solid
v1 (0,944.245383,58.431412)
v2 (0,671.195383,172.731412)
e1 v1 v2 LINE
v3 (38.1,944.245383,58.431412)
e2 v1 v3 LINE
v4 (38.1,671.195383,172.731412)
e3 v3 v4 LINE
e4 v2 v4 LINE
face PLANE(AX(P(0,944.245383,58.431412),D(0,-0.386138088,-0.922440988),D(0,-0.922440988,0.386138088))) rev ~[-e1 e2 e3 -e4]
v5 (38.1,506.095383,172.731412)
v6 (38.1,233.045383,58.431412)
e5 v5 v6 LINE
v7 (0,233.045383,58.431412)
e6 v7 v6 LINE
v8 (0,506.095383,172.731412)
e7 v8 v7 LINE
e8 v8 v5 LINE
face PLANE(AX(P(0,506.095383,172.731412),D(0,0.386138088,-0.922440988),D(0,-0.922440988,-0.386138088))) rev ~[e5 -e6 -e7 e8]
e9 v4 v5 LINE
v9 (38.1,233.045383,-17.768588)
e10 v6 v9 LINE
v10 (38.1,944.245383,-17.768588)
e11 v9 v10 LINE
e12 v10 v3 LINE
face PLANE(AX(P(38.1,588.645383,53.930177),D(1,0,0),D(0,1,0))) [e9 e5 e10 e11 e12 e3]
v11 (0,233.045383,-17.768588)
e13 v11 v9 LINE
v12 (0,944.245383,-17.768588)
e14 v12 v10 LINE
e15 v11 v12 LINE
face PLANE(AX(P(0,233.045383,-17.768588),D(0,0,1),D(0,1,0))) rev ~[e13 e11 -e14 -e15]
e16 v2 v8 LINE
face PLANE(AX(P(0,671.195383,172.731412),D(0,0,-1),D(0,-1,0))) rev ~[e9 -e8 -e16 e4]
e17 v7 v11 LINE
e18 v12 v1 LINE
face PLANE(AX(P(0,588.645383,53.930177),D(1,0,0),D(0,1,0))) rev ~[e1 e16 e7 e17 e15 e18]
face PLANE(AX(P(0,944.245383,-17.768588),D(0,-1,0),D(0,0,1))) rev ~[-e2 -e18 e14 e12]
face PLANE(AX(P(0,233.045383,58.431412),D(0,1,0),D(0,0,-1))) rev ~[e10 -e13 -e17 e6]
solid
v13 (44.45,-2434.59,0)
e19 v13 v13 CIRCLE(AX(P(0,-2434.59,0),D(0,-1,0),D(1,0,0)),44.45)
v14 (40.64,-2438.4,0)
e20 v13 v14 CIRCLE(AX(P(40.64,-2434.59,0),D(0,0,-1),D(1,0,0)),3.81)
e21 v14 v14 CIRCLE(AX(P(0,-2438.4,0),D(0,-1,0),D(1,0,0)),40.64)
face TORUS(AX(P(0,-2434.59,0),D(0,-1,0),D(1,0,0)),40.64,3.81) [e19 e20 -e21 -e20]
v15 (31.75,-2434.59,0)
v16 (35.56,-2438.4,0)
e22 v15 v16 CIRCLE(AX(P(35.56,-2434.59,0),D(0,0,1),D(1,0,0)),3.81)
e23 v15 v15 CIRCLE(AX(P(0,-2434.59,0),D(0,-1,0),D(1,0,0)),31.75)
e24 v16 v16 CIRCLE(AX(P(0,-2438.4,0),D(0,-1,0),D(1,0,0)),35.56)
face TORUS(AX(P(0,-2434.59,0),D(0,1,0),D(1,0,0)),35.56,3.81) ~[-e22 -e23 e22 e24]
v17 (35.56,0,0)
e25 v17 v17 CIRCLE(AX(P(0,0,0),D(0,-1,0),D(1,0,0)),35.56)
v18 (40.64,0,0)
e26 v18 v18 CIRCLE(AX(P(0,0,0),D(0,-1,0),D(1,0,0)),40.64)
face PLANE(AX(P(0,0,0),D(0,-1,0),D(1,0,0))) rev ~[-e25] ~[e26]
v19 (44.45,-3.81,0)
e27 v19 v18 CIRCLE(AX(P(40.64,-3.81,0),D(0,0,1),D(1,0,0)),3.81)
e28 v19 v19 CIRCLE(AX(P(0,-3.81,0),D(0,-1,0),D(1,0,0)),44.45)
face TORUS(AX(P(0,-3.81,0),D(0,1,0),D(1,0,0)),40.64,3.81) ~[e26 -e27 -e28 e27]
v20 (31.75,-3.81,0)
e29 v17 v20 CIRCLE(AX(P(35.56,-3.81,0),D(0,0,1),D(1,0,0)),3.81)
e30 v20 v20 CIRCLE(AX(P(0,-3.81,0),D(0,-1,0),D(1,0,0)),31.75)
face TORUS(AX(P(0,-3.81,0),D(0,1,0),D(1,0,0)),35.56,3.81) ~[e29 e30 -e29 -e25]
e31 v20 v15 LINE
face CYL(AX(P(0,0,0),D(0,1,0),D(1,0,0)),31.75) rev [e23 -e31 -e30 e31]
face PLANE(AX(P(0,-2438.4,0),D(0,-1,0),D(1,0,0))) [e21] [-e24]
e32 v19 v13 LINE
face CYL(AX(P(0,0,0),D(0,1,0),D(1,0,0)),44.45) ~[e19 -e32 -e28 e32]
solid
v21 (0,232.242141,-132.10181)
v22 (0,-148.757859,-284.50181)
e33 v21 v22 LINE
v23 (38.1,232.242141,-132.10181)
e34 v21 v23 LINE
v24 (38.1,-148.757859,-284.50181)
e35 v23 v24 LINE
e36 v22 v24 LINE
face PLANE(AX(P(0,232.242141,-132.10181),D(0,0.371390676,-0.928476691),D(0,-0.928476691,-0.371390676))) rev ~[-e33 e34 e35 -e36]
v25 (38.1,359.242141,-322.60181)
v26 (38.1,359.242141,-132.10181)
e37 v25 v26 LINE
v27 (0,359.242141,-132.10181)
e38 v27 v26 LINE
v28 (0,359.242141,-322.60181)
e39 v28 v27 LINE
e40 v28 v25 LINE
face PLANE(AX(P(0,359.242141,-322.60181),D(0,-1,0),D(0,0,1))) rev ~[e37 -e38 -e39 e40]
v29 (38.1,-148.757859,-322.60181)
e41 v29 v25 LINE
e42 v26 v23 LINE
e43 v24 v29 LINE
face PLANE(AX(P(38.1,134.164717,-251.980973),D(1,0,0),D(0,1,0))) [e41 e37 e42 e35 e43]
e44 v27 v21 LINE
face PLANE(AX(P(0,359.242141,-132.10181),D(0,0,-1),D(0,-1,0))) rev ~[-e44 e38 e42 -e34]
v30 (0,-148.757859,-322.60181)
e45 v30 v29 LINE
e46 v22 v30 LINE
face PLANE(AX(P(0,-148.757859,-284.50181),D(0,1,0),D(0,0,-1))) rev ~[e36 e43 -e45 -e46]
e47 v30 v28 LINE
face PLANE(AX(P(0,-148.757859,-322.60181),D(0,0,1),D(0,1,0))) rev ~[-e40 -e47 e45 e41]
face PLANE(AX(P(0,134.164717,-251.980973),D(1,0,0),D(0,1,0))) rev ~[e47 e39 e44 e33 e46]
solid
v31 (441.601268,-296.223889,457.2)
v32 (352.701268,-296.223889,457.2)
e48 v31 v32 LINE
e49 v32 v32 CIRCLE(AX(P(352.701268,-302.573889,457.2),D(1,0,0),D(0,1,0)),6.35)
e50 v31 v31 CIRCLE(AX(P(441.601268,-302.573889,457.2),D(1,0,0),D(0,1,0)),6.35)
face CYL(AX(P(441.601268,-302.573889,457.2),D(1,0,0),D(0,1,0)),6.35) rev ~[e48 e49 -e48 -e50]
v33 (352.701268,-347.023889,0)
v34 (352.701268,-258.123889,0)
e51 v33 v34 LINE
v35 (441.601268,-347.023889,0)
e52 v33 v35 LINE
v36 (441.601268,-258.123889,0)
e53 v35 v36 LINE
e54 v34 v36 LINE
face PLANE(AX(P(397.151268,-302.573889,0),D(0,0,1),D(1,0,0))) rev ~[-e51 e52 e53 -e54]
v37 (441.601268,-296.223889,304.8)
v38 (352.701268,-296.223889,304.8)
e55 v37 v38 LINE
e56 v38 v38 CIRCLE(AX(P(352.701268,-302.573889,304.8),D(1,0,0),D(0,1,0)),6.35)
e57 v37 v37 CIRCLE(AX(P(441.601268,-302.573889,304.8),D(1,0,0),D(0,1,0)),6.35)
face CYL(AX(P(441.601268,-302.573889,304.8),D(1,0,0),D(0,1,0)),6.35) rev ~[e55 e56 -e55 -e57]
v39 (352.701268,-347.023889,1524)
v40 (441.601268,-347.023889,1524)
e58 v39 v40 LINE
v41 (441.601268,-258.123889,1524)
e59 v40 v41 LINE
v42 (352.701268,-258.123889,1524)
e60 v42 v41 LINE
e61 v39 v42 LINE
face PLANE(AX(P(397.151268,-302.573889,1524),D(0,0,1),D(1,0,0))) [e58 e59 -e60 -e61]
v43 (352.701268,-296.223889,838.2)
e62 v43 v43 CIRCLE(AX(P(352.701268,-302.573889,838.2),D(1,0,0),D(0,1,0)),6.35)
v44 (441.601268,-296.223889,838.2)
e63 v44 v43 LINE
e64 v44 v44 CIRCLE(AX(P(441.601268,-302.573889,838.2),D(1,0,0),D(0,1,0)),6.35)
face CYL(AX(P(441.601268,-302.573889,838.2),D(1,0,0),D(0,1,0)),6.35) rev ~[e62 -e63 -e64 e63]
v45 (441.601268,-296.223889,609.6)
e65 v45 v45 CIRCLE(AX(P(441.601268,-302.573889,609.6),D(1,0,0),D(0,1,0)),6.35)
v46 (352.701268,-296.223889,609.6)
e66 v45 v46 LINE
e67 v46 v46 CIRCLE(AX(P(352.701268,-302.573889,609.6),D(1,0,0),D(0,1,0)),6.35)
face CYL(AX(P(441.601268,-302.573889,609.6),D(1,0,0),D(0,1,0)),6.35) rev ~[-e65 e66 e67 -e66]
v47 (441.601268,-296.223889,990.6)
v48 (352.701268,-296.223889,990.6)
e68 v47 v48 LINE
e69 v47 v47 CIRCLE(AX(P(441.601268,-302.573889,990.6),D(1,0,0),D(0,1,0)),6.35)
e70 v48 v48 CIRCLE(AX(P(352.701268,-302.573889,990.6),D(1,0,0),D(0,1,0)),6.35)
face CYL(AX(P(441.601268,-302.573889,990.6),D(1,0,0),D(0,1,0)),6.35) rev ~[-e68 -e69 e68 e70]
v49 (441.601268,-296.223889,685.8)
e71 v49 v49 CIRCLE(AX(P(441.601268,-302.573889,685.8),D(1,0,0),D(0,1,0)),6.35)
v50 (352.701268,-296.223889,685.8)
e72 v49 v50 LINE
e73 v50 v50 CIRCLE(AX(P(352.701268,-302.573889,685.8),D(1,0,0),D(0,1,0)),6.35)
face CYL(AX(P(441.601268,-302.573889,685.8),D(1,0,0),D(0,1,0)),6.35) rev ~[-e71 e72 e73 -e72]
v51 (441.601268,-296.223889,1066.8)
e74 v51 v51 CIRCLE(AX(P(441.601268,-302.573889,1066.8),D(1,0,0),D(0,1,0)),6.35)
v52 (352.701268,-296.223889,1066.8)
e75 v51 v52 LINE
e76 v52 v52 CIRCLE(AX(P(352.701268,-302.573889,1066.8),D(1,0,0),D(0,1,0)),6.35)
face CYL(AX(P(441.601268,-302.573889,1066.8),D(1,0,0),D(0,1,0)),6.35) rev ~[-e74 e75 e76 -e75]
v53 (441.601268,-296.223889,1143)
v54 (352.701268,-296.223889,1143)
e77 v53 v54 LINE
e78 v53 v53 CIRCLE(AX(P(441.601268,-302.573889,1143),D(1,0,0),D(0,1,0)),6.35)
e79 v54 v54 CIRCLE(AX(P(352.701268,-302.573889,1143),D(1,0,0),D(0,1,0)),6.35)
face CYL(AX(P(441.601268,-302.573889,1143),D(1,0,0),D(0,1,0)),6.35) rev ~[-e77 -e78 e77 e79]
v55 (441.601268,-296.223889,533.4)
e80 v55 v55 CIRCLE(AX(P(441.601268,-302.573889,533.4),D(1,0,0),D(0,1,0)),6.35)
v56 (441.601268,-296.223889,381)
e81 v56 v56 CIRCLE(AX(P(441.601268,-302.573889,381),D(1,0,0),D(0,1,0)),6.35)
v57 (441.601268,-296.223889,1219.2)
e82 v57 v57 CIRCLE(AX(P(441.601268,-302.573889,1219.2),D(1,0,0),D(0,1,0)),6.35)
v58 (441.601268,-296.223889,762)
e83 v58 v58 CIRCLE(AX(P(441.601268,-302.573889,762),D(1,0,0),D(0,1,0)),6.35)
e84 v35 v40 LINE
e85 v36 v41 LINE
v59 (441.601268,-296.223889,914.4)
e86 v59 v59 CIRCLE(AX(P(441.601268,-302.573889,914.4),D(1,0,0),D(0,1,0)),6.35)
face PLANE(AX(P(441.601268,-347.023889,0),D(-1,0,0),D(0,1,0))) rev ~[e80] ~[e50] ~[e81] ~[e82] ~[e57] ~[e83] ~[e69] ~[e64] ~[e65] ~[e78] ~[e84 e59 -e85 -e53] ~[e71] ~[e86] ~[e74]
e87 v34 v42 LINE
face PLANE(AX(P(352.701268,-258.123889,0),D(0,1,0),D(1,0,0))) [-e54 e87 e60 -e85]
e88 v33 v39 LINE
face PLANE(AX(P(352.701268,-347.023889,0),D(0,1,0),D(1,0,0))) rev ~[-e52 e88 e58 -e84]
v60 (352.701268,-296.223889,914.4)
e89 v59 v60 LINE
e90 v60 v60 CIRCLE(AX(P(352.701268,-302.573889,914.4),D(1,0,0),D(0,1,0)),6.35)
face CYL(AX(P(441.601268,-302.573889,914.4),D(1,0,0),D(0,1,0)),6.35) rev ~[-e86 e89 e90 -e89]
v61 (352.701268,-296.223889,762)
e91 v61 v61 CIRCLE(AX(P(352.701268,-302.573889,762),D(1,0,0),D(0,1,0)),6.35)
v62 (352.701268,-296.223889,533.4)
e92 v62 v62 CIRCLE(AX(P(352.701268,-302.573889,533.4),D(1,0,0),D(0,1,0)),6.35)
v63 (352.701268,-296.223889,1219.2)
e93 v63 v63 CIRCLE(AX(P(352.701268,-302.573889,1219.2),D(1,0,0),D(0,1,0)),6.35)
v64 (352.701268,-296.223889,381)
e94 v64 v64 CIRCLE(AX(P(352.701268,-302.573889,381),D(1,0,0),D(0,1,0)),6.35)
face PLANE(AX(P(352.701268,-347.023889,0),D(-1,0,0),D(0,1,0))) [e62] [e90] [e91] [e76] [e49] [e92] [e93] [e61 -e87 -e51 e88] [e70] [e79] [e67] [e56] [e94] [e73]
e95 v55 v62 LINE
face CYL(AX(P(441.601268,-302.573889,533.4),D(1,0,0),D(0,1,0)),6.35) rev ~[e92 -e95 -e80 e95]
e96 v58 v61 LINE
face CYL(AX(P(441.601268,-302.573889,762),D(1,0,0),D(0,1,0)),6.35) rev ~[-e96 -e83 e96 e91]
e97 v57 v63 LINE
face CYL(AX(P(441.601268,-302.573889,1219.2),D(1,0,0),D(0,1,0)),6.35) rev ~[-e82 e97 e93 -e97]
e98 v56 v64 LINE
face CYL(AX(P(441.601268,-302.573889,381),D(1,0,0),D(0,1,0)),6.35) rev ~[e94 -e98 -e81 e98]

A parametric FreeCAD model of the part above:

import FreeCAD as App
import Part
import Sketcher
Q = App.Units.Quantity


def faces_at(feature, points):
    """Names of the faces that lie closest to the given points."""
    faces = feature.Shape.Faces
    near = lambda p: min(range(len(faces)), key=lambda i: faces[i].distToShape(Part.Vertex(*p))[0])
    return sorted({f"Face{near(p) + 1}" for p in points})


def add_polygon(sketch, points):
    """Adds a closed chain of lines whose ends are joined by coincident constraints."""
    first, n = sketch.GeometryCount, len(points)
    for a, b in zip(points, points[1:] + points[:1]):
        sketch.addGeometry(Part.LineSegment(App.Vector(*a, 0), App.Vector(*b, 0)), False)
    for i in range(n):
        sketch.addConstraint(Sketcher.Constraint("Coincident", first + i, 2, first + (i + 1) % n, 1))

doc = App.newDocument("Part")
body = doc.addObject("PartDesign::Body", "Body")

# Sketch on XZ plane
sketch1 = doc.addObject("Sketcher::SketchObject", "Sketch")
body.addObject(sketch1)
sketch1.AttachmentSupport = (doc.XZ_Plane, [""])
sketch1.MapMode = "FlatFace"
sketch1.addGeometry(Part.Circle(App.Vector(0, 0, 0), App.Vector(0, 0, 1), 44), False)
sketch1.addConstraint([
    Sketcher.Constraint("Coincident", 0, 3, -1, 1),
    Sketcher.Constraint("Diameter", 0, Q("3.5 in")),
])
pad1 = doc.addObject("PartDesign::Pad", "Pad")
body.addObject(pad1)
pad1.Profile = sketch1
pad1.Length = Q("96 in")
doc.recompute()

thickness = doc.addObject("PartDesign::Thickness", "Thickness")
body.addObject(thickness)
thickness.Base = (pad1, faces_at(pad1, [(0, 0, 0), (0, -2438.4, 0)]))
thickness.Value = Q("0.5 in")
thickness.Reversed = True
thickness.Join = "Arc"
doc.recompute()

fillet = doc.addObject("PartDesign::Fillet", "Fillet")
body.addObject(fillet)
fillet.Base = (thickness, ["Edge1"])
fillet.UseAllEdges = True
fillet.Radius = Q("0.15 in")
body2 = doc.addObject("PartDesign::Body", "Body001")

# Sketch on XY plane
sketch2 = doc.addObject("Sketcher::SketchObject", "Sketch001")
body2.addObject(sketch2)
sketch2.AttachmentSupport = (doc.getObject("XY_Plane001"), [""])
sketch2.MapMode = "FlatFace"
add_polygon(sketch2, [(353, -258), (353, -347), (442, -347), (442, -258)])  # lines 0-3
sketch2.addConstraint([
    Sketcher.Constraint("Vertical", 0),
    Sketcher.Constraint("Horizontal", 1),
    Sketcher.Constraint("Vertical", 2),
    Sketcher.Constraint("Horizontal", 3),
    Sketcher.Constraint("Equal", 3, 0),
    Sketcher.Constraint("DistanceX", 1, 1, 1, 2, Q("3.5 in")),
    Sketcher.Constraint("DistanceY", 0, 2, -1, 1, 347.023889),
    Sketcher.Constraint("DistanceX", -1, 1, 0, 2, 352.701268),
])
pad2 = doc.addObject("PartDesign::Pad", "Pad001")
body2.addObject(pad2)
pad2.Profile = sketch2
pad2.Length = Q("60 in")

# Sketch on YZ plane
sketch3 = doc.addObject("Sketcher::SketchObject", "Sketch002")
body2.addObject(sketch3)
sketch3.AttachmentSupport = (doc.getObject("YZ_Plane001"), [""])
sketch3.MapMode = "FlatFace"
sketch3.AttachmentOffset = App.Placement(App.Vector(0, 0, 441.601268), App.Rotation())
sketch3.addGeometry([
    Part.Circle(App.Vector(-303, 305, 0), App.Vector(0, 0, 1), 6),  # 0
    Part.Circle(App.Vector(-303, 381, 0), App.Vector(0, 0, 1), 6),  # 1
    Part.Circle(App.Vector(-303, 457, 0), App.Vector(0, 0, 1), 6),  # 2
    Part.Circle(App.Vector(-303, 533, 0), App.Vector(0, 0, 1), 6),  # 3
    Part.Circle(App.Vector(-303, 610, 0), App.Vector(0, 0, 1), 6),  # 4
    Part.Circle(App.Vector(-303, 686, 0), App.Vector(0, 0, 1), 6),  # 5
    Part.Circle(App.Vector(-303, 762, 0), App.Vector(0, 0, 1), 6),  # 6
    Part.Circle(App.Vector(-303, 838, 0), App.Vector(0, 0, 1), 6),  # 7
    Part.Circle(App.Vector(-303, 914, 0), App.Vector(0, 0, 1), 6),  # 8
    Part.Circle(App.Vector(-303, 991, 0), App.Vector(0, 0, 1), 6),  # 9
    Part.Circle(App.Vector(-303, 1067, 0), App.Vector(0, 0, 1), 6),  # 10
    Part.Circle(App.Vector(-303, 1143, 0), App.Vector(0, 0, 1), 6),  # 11
    Part.Circle(App.Vector(-303, 1219, 0), App.Vector(0, 0, 1), 6),  # 12
], False)
sketch3.addConstraint([
    Sketcher.Constraint("Equal", 0, 1),
    Sketcher.Constraint("Equal", 1, 2),
    Sketcher.Constraint("Equal", 2, 3),
    Sketcher.Constraint("Equal", 3, 4),
    Sketcher.Constraint("Equal", 4, 5),
    Sketcher.Constraint("Equal", 5, 6),
    Sketcher.Constraint("Equal", 6, 7),
    Sketcher.Constraint("Equal", 7, 8),
    Sketcher.Constraint("Equal", 8, 9),
    Sketcher.Constraint("Equal", 9, 10),
    Sketcher.Constraint("Equal", 10, 11),
    Sketcher.Constraint("Equal", 11, 12),
    Sketcher.Constraint("Vertical", 0, 3, 1, 3),
    Sketcher.Constraint("Vertical", 1, 3, 2, 3),
    Sketcher.Constraint("Vertical", 2, 3, 3, 3),
    Sketcher.Constraint("Vertical", 3, 3, 4, 3),
    Sketcher.Constraint("Vertical", 4, 3, 5, 3),
    Sketcher.Constraint("Vertical", 5, 3, 6, 3),
    Sketcher.Constraint("Vertical", 6, 3, 7, 3),
    Sketcher.Constraint("Vertical", 7, 3, 8, 3),
    Sketcher.Constraint("Vertical", 8, 3, 9, 3),
    Sketcher.Constraint("Vertical", 9, 3, 10, 3),
    Sketcher.Constraint("Vertical", 10, 3, 11, 3),
    Sketcher.Constraint("Vertical", 11, 3, 12, 3),
    Sketcher.Constraint("Diameter", 0, Q("0.5 in")),
    Sketcher.Constraint("DistanceY", -1, 1, 0, 3, Q("12 in")),
    Sketcher.Constraint("DistanceY", -1, 1, 1, 3, Q("15 in")),
    Sketcher.Constraint("DistanceY", -1, 1, 2, 3, Q("18 in")),
    Sketcher.Constraint("DistanceY", -1, 1, 3, 3, Q("21 in")),
    Sketcher.Constraint("DistanceY", -1, 1, 4, 3, Q("24 in")),
    Sketcher.Constraint("DistanceY", -1, 1, 5, 3, Q("27 in")),
    Sketcher.Constraint("DistanceY", -1, 1, 6, 3, Q("30 in")),
    Sketcher.Constraint("DistanceY", -1, 1, 7, 3, Q("33 in")),
    Sketcher.Constraint("DistanceY", -1, 1, 8, 3, Q("36 in")),
    Sketcher.Constraint("DistanceY", -1, 1, 9, 3, Q("39 in")),
    Sketcher.Constraint("DistanceY", -1, 1, 10, 3, Q("42 in")),
    Sketcher.Constraint("DistanceY", -1, 1, 11, 3, Q("45 in")),
    Sketcher.Constraint("DistanceY", -1, 1, 12, 3, Q("48 in")),
    Sketcher.Constraint("DistanceX", 0, 3, -1, 1, 302.573889),
])
pocket1 = doc.addObject("PartDesign::Pocket", "Pocket")
body2.addObject(pocket1)
pocket1.Profile = sketch3
pocket1.Type = "ThroughAll"
body3 = doc.addObject("PartDesign::Body", "Body002")

# Sketch on YZ plane
sketch4 = doc.addObject("Sketcher::SketchObject", "Sketch003")
body3.addObject(sketch4)
sketch4.AttachmentSupport = (doc.getObject("YZ_Plane002"), [""])
sketch4.MapMode = "FlatFace"
add_polygon(sketch4, [(359, -132), (232, -132), (-149, -285), (-149, -323), (359, -323)])  # lines 0-4
sketch4.addConstraint([
    Sketcher.Constraint("Horizontal", 0),
    Sketcher.Constraint("Vertical", 2),
    Sketcher.Constraint("Horizontal", 3),
    Sketcher.Constraint("Vertical", 4),
    Sketcher.Constraint("DistanceX", 0, 2, 0, 1, Q("5 in")),
    Sketcher.Constraint("DistanceX", 3, 1, 3, 2, Q("20 in")),
    Sketcher.Constraint("DistanceY", 2, 2, 2, 1, Q("1.5 in")),
    Sketcher.Constraint("DistanceY", 4, 1, 4, 2, Q("7.5 in")),
    Sketcher.Constraint("DistanceX", -1, 1, 0, 2, 232.242141),
    Sketcher.Constraint("DistanceY", 0, 2, -1, 1, 132.10181),
])
pad3 = doc.addObject("PartDesign::Pad", "Pad002")
body3.addObject(pad3)
pad3.Profile = sketch4
pad3.Length = Q("1.5 in")
body4 = doc.addObject("PartDesign::Body", "Body003")

# Sketch on YZ plane
sketch5 = doc.addObject("Sketcher::SketchObject", "Sketch004")
body4.addObject(sketch5)
sketch5.AttachmentSupport = (doc.getObject("YZ_Plane003"), [""])
sketch5.MapMode = "FlatFace"
add_polygon(sketch5, [(506, 173), (233, 58), (233, -18), (944, -18), (944, 58), (671, 173)])  # lines 0-5
sketch5.addConstraint([
    Sketcher.Constraint("Vertical", 1),
    Sketcher.Constraint("Horizontal", 2),
    Sketcher.Constraint("Vertical", 3),
    Sketcher.Constraint("Horizontal", 5),
    Sketcher.Constraint("Horizontal", 0, 2, 3, 2),
    Sketcher.Constraint("Equal", 0, 4),
    Sketcher.Constraint("DistanceX", 2, 1, 2, 2, Q("28 in")),
    Sketcher.Constraint("DistanceY", 1, 2, 1, 1, Q("3 in")),
    Sketcher.Constraint("DistanceX", 5, 2, 5, 1, Q("6.5 in")),
    Sketcher.Constraint("DistanceY", 3, 2, 4, 2, Q("4.5 in")),
    Sketcher.Constraint("DistanceY", -1, 1, 0, 2, 58.431412),
    Sketcher.Constraint("DistanceX", -1, 1, 0, 2, 233.045383),
])
pad4 = doc.addObject("PartDesign::Pad", "Pad003")
body4.addObject(pad4)
pad4.Profile = sketch5
pad4.Length = Q("1.5 in")

doc.recompute()
